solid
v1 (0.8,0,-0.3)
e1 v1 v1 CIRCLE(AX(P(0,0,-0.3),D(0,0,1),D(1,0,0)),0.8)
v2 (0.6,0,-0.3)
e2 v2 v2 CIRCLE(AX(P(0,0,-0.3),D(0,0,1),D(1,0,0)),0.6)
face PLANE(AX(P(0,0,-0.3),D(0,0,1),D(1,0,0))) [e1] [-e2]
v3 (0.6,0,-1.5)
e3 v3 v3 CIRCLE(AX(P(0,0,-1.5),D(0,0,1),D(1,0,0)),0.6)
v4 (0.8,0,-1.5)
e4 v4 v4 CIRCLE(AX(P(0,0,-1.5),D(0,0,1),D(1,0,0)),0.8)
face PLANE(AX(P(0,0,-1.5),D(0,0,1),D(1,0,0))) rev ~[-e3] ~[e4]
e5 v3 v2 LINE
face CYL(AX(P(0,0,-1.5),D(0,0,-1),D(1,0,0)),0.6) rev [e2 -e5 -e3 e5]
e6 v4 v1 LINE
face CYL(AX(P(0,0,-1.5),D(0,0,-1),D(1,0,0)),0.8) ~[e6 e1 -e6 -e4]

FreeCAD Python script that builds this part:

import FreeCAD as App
import Part
import Sketcher

V = App.Vector

doc = App.newDocument("Part")
body = doc.addObject("PartDesign::Body", "Body")

sketch1 = doc.addObject("Sketcher::SketchObject", "Sketch")
body.addObject(sketch1)
sketch1.AttachmentSupport = (doc.XY_Plane, [""])
sketch1.MapMode = "FlatFace"
sketch1.addGeometry(Part.Circle(V(0, 0, 0), V(0, 0, 1), 0.6), False)
sketch1.addConstraint([
    Sketcher.Constraint("Coincident", 0, 3, -1, 1),
    Sketcher.Constraint("Diameter", 0, 1.2),
])
pad1 = doc.addObject("PartDesign::Pad", "Pad")
body.addObject(pad1)
pad1.Profile = sketch1
pad1.Length = 1.2
body2 = doc.addObject("PartDesign::Body", "Body001")

sketch2 = doc.addObject("Sketcher::SketchObject", "Sketch001")
body2.addObject(sketch2)
sketch2.AttachmentSupport = (doc.getObject("XY_Plane001"), [""])
sketch2.MapMode = "FlatFace"
sketch2.addGeometry(Part.Circle(V(0, 0, 0), V(0, 0, 1), 0.8), False)
sketch2.addConstraint([
    Sketcher.Constraint("Coincident", 0, 3, -1, 1),
    Sketcher.Constraint("Diameter", 0, 1.6),
])
pad2 = doc.addObject("PartDesign::Pad", "Pad001")
body2.addObject(pad2)
pad2.Profile = sketch2
pad2.Length = 1.2
doc.recompute()

boolean = doc.addObject("PartDesign::Boolean", "Boolean")
body2.addObject(boolean)
boolean.Type = "Cut"
boolean.addObjects([body])
body3 = doc.addObject("PartDesign::Body", "Body002")
doc.recompute()

body2.Placement = App.Placement(V(0, 0, -1.5), App.Rotation(V(0, 0, 1), 0))
boolean2 = doc.addObject("PartDesign::Boolean", "Boolean001")
body3.addObject(boolean2)
boolean2.Type = "Fuse"
boolean2.addObjects([body2])

doc.recompute()
